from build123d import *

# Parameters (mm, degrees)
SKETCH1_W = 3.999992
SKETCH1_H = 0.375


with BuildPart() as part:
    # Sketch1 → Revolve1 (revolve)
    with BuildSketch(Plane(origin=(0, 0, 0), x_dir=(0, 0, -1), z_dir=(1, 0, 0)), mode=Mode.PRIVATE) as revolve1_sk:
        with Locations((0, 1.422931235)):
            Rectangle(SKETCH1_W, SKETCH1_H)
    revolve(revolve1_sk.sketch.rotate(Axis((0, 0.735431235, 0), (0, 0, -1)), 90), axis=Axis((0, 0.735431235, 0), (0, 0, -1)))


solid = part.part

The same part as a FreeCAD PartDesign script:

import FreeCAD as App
import Part
import Sketcher
Q = App.Units.Quantity

doc = App.newDocument("Part")
params = doc.addObject("Spreadsheet::Sheet", "Params")
for row, (alias, value) in enumerate([
    ("revolution_angle", "360 deg"),
], start=1):
    params.set(f"A{row}", alias)
    params.set(f"B{row}", "=" + value)
    params.setAlias(f"B{row}", alias)

body = doc.addObject("PartDesign::Body", "Body")

sketch1 = body.newObject("Sketcher::SketchObject", "Sketch")
sketch1.AttachmentSupport = (doc.getObject("YZ_Plane"), [""])
sketch1.MapMode = "FlatFace"
sketch1.addGeometry([
    Part.LineSegment(App.Vector(1.610431, 1.999996, 0), App.Vector(1.235431, 1.999996, 0)),
    Part.LineSegment(App.Vector(1.235431, 1.999996, 0), App.Vector(1.235431, -1.999996, 0)),
    Part.LineSegment(App.Vector(1.235431, -1.999996, 0), App.Vector(1.610431, -1.999996, 0)),
    Part.LineSegment(App.Vector(1.610431, -1.999996, 0), App.Vector(1.610431, 1.999996, 0)),
], False)
sketch1.addGeometry(Part.LineSegment(App.Vector(0.735431, 1.999996, 0), App.Vector(0.735431, -1.999996, 0)), True)
sketch1.addConstraint([
    Sketcher.Constraint("Coincident", 0, 2, 1, 1),
    Sketcher.Constraint("Coincident", 1, 2, 2, 1),
    Sketcher.Constraint("Coincident", 2, 2, 3, 1),
    Sketcher.Constraint("Coincident", 3, 2, 0, 1),
    Sketcher.Constraint("Horizontal", 0),
    Sketcher.Constraint("Vertical", 1),
    Sketcher.Constraint("Horizontal", 2),
    Sketcher.Constraint("Vertical", 3),
    Sketcher.Constraint("Vertical", 4),
    Sketcher.Constraint("Horizontal", 3, 2, 4, 1),
    Sketcher.Constraint("Horizontal", 2, 2, 4, 2),
    Sketcher.Constraint("DistanceX", 4, 1, 0, 2, Q("0.5 mm")),
    Sketcher.Constraint("DistanceX", 0, 2, 0, 1, Q("0.375 mm")),
    Sketcher.Constraint("DistanceY", 1, 2, 1, 1, Q("3.999992 mm")),
    Sketcher.Constraint("DistanceX", -1, 1, 0, 2, Q("1.235431 mm")),
    Sketcher.Constraint("DistanceY", -1, 1, 0, 2, Q("1.999996 mm")),
])
revolution = body.newObject("PartDesign::Revolution", "Revolution")
revolution.Profile = sketch1
revolution.ReferenceAxis = (sketch1, ["Axis0"])
revolution.setExpression("Angle", "Params.revolution_angle")

doc.recompute()
